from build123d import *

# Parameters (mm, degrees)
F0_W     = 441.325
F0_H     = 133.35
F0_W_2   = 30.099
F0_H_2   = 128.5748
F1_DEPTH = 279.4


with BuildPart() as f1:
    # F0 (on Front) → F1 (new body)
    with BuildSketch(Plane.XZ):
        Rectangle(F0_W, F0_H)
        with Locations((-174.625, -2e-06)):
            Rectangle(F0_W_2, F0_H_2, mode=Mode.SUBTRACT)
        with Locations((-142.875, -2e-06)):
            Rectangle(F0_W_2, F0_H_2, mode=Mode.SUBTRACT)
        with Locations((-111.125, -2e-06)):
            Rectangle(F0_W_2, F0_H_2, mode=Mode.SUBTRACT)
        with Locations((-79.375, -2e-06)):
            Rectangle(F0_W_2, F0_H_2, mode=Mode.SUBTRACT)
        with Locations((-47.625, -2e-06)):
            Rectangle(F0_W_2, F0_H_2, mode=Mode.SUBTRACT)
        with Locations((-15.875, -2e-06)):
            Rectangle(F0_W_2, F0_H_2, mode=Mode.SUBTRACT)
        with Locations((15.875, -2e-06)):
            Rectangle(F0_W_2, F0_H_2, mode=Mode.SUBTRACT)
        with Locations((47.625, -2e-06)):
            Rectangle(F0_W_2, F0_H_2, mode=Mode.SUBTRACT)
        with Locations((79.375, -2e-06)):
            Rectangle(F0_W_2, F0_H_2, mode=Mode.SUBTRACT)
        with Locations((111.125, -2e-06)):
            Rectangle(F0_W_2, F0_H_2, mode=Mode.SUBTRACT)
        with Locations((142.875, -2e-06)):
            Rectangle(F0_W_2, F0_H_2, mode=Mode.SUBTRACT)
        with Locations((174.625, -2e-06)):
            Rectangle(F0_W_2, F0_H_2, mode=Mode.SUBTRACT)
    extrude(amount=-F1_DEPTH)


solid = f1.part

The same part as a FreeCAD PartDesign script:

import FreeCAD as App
import Part
import Sketcher
from FreeCAD import Vector
Q = App.Units.Quantity


def add_polygon(sketch, points):
    """Adds a closed chain of lines whose ends are joined by coincident constraints."""
    first, n = sketch.GeometryCount, len(points)
    for a, b in zip(points, points[1:] + points[:1]):
        sketch.addGeometry(Part.LineSegment(App.Vector(*a, 0), App.Vector(*b, 0)), False)
    for i in range(n):
        sketch.addConstraint(Sketcher.Constraint("Coincident", first + i, 2, first + (i + 1) % n, 1))

doc = App.newDocument("Part")
body = doc.addObject("PartDesign::Body", "Body")

sketch1 = doc.addObject("Sketcher::SketchObject", "Sketch")
body.addObject(sketch1)
sketch1.AttachmentSupport = (doc.XZ_Plane, [""])
sketch1.MapMode = "FlatFace"
add_polygon(sketch1, [(-221, 67), (-221, -67), (221, -67), (221, 67)])
add_polygon(sketch1, [(-160, -64), (-190, -64), (-190, 64), (-160, 64)])
add_polygon(sketch1, [(-128, -64), (-158, -64), (-158, 64), (-128, 64)])
add_polygon(sketch1, [(-96, -64), (-126, -64), (-126, 64), (-96, 64)])
add_polygon(sketch1, [(-64, -64), (-94, -64), (-94, 64), (-64, 64)])
add_polygon(sketch1, [(-33, -64), (-63, -64), (-63, 64), (-33, 64)])
add_polygon(sketch1, [(-1, -64), (-31, -64), (-31, 64), (-1, 64)])
add_polygon(sketch1, [(31, -64), (1, -64), (1, 64), (31, 64)])
add_polygon(sketch1, [(63, -64), (33, -64), (33, 64), (63, 64)])
add_polygon(sketch1, [(94, -64), (64, -64), (64, 64), (94, 64)])
add_polygon(sketch1, [(126, -64), (96, -64), (96, 64), (126, 64)])
add_polygon(sketch1, [(158, -64), (128, -64), (128, 64), (158, 64)])
add_polygon(sketch1, [(190, -64), (160, -64), (160, 64), (190, 64)])
sketch1.addConstraint([
    Sketcher.Constraint("Vertical", 0),
    Sketcher.Constraint("Horizontal", 1),
    Sketcher.Constraint("Vertical", 2),
    Sketcher.Constraint("Horizontal", 3),
    Sketcher.Constraint("Horizontal", 4),
    Sketcher.Constraint("Vertical", 5),
    Sketcher.Constraint("Horizontal", 6),
    Sketcher.Constraint("Vertical", 7),
    Sketcher.Constraint("Horizontal", 8),
    Sketcher.Constraint("Vertical", 9),
    Sketcher.Constraint("Horizontal", 10),
    Sketcher.Constraint("Vertical", 11),
    Sketcher.Constraint("Horizontal", 12),
    Sketcher.Constraint("Vertical", 13),
    Sketcher.Constraint("Horizontal", 14),
    Sketcher.Constraint("Vertical", 15),
    Sketcher.Constraint("Horizontal", 16),
    Sketcher.Constraint("Vertical", 17),
    Sketcher.Constraint("Horizontal", 18),
    Sketcher.Constraint("Vertical", 19),
    Sketcher.Constraint("Horizontal", 20),
    Sketcher.Constraint("Vertical", 21),
    Sketcher.Constraint("Horizontal", 22),
    Sketcher.Constraint("Vertical", 23),
    Sketcher.Constraint("Horizontal", 24),
    Sketcher.Constraint("Vertical", 25),
    Sketcher.Constraint("Horizontal", 26),
    Sketcher.Constraint("Vertical", 27),
    Sketcher.Constraint("Horizontal", 28),
    Sketcher.Constraint("Vertical", 29),
    Sketcher.Constraint("Horizontal", 30),
    Sketcher.Constraint("Vertical", 31),
    Sketcher.Constraint("Horizontal", 32),
    Sketcher.Constraint("Vertical", 33),
    Sketcher.Constraint("Horizontal", 34),
    Sketcher.Constraint("Vertical", 35),
    Sketcher.Constraint("Horizontal", 36),
    Sketcher.Constraint("Vertical", 37),
    Sketcher.Constraint("Horizontal", 38),
    Sketcher.Constraint("Vertical", 39),
    Sketcher.Constraint("Horizontal", 40),
    Sketcher.Constraint("Vertical", 41),
    Sketcher.Constraint("Horizontal", 42),
    Sketcher.Constraint("Vertical", 43),
    Sketcher.Constraint("Horizontal", 44),
    Sketcher.Constraint("Vertical", 45),
    Sketcher.Constraint("Horizontal", 46),
    Sketcher.Constraint("Vertical", 47),
    Sketcher.Constraint("Horizontal", 48),
    Sketcher.Constraint("Vertical", 49),
    Sketcher.Constraint("Horizontal", 50),
    Sketcher.Constraint("Vertical", 51),
    Sketcher.Constraint("Symmetric", 0, 2, 2, 2, -1, 1),
    Sketcher.Constraint("Symmetric", 26, 2, 28, 2, -1, 1),
    Sketcher.Constraint("Symmetric", 24, 2, 30, 2, -1, 1),
    Sketcher.Constraint("Symmetric", 22, 2, 32, 2, -1, 1),
    Sketcher.Constraint("Symmetric", 20, 2, 34, 2, -1, 1),
    Sketcher.Constraint("Symmetric", 18, 2, 36, 2, -1, 1),
    Sketcher.Constraint("Symmetric", 16, 2, 38, 2, -1, 1),
    Sketcher.Constraint("Symmetric", 14, 2, 40, 2, -1, 1),
    Sketcher.Constraint("Symmetric", 12, 2, 42, 2, -1, 1),
    Sketcher.Constraint("Symmetric", 10, 2, 44, 2, -1, 1),
    Sketcher.Constraint("Symmetric", 8, 2, 46, 2, -1, 1),
    Sketcher.Constraint("Symmetric", 6, 2, 48, 2, -1, 1),
    Sketcher.Constraint("Symmetric", 4, 2, 50, 2, -1, 1),
    Sketcher.Constraint("Horizontal", 7, 2, 8, 2),
    Sketcher.Constraint("Horizontal", 6, 2, 9, 2),
    Sketcher.Constraint("Horizontal", 11, 2, 12, 2),
    Sketcher.Constraint("Horizontal", 10, 2, 13, 2),
    Sketcher.Constraint("Horizontal", 15, 2, 16, 2),
    Sketcher.Constraint("Horizontal", 14, 2, 17, 2),
    Sketcher.Constraint("Horizontal", 19, 2, 20, 2),
    Sketcher.Constraint("Horizontal", 18, 2, 21, 2),
    Sketcher.Constraint("Horizontal", 23, 2, 24, 2),
    Sketcher.Constraint("Horizontal", 22, 2, 25, 2),
    Sketcher.Constraint("Horizontal", 27, 2, 28, 2),
    Sketcher.Constraint("Equal", 6, 8),
    Sketcher.Constraint("Equal", 10, 12),
    Sketcher.Constraint("Equal", 14, 16),
    Sketcher.Constraint("Equal", 18, 20),
    Sketcher.Constraint("Equal", 22, 24),
    Sketcher.Constraint("DistanceY", 0, 2, 0, 1, Q("5.25 in")),
    Sketcher.Constraint("DistanceX", 4, 2, 12, 2, Q("2.5 in")),
    Sketcher.Constraint("DistanceX", 8, 2, 16, 2, Q("2.5 in")),
    Sketcher.Constraint("DistanceX", 12, 2, 20, 2, Q("2.5 in")),
    Sketcher.Constraint("DistanceX", 16, 2, 24, 2, Q("2.5 in")),
    Sketcher.Constraint("DistanceX", 20, 2, 28, 2, Q("2.5 in")),
    Sketcher.Constraint("DistanceX", 1, 1, 1, 2, Q("17.375 in")),
    Sketcher.Constraint("DistanceX", 4, 2, 4, 1, Q("1.185 in")),
    Sketcher.Constraint("DistanceY", 5, 1, 5, 2, Q("5.062 in")),
    Sketcher.Constraint("DistanceX", 0, 2, 4, 2, Q("1.22 in")),
])
pad1 = doc.addObject("PartDesign::Pad", "Pad")
body.addObject(pad1)
pad1.Profile = sketch1
pad1.Length = Q("11 in")
pad1.Reversed = True

doc.recompute()
